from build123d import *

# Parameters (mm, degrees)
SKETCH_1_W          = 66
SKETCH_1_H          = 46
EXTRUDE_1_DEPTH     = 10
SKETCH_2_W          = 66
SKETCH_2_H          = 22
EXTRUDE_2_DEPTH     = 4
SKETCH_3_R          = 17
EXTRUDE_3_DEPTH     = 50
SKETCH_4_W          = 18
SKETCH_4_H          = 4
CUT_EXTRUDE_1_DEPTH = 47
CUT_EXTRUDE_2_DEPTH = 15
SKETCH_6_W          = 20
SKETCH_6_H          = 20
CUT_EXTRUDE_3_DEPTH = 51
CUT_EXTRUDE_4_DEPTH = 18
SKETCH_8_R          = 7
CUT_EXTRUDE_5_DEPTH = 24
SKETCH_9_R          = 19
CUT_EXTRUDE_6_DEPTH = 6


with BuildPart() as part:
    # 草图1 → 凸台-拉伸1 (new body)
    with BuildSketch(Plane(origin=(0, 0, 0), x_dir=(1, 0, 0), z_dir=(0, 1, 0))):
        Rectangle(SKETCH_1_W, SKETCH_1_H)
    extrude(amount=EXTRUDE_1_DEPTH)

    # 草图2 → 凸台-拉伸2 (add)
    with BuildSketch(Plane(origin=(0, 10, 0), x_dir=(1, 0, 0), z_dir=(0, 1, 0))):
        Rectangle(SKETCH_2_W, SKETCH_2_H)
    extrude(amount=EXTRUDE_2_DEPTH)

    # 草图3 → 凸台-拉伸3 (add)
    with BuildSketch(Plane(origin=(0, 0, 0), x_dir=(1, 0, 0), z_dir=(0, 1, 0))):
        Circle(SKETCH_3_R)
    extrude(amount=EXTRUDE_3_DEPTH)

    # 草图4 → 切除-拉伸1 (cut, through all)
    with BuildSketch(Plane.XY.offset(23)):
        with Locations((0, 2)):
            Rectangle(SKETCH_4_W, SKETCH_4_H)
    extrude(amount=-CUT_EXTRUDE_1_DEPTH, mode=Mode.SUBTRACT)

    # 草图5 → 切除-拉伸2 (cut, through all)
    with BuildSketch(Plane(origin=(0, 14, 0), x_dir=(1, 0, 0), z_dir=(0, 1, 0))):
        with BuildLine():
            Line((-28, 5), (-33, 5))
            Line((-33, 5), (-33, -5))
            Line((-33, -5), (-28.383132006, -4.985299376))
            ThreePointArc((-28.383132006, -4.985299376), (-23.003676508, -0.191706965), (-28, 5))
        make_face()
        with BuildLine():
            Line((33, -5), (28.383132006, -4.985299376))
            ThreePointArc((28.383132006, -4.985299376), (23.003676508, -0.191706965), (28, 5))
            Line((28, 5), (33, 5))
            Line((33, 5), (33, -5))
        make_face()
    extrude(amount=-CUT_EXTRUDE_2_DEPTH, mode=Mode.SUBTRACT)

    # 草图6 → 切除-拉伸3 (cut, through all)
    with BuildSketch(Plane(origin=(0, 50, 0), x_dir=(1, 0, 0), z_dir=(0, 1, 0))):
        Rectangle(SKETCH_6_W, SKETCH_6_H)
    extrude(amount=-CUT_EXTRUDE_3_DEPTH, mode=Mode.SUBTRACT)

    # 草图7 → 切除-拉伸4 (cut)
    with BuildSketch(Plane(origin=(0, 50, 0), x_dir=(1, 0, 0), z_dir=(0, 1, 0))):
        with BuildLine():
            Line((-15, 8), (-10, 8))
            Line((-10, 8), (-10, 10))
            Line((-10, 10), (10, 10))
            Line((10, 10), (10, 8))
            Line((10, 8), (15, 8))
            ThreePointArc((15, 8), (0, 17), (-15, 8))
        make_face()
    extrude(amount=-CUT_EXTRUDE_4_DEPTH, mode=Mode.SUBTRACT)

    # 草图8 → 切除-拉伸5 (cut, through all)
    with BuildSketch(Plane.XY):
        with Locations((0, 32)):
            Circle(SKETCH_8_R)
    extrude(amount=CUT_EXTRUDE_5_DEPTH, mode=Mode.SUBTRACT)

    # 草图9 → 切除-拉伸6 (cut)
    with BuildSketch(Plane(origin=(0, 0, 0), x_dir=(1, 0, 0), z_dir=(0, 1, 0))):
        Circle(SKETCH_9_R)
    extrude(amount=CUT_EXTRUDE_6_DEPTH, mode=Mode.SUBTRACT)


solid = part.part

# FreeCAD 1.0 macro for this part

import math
import FreeCAD as App
import Part
import Sketcher
from FreeCAD import Vector

doc = App.newDocument("Part")
body = doc.addObject("PartDesign::Body", "Body")

sketch1 = doc.addObject("Sketcher::SketchObject", "Sketch")
body.addObject(sketch1)
sketch1.AttachmentSupport = (doc.XZ_Plane, [""])
sketch1.MapMode = "FlatFace"
sketch1.addGeometry([
    Part.LineSegment(Vector(-33, -23, 0), Vector(-33, 23, 0)),
    Part.LineSegment(Vector(-33, 23, 0), Vector(33, 23, 0)),
    Part.LineSegment(Vector(33, 23, 0), Vector(33, -23, 0)),
    Part.LineSegment(Vector(33, -23, 0), Vector(-33, -23, 0)),
], False)
sketch1.addConstraint([
    Sketcher.Constraint("Coincident", 0, 2, 1, 1),
    Sketcher.Constraint("Coincident", 1, 2, 2, 1),
    Sketcher.Constraint("Coincident", 2, 2, 3, 1),
    Sketcher.Constraint("Coincident", 3, 2, 0, 1),
    Sketcher.Constraint("Vertical", 0),
    Sketcher.Constraint("Horizontal", 1),
    Sketcher.Constraint("Vertical", 2),
    Sketcher.Constraint("Horizontal", 3),
    Sketcher.Constraint("Symmetric", 0, 2, 2, 2, -1, 1),
    Sketcher.Constraint("DistanceX", 1, 1, 1, 2, 66.0),
    Sketcher.Constraint("DistanceY", 0, 1, 0, 2, 46.0),
])
pad1 = doc.addObject("PartDesign::Pad", "Pad")
body.addObject(pad1)
pad1.Profile = sketch1
pad1.Length = 10
pad1.Reversed = True

sketch2 = doc.addObject("Sketcher::SketchObject", "Sketch001")
body.addObject(sketch2)
sketch2.AttachmentSupport = (doc.XZ_Plane, [""])
sketch2.MapMode = "FlatFace"
sketch2.AttachmentOffset = App.Placement(Vector(0, 0, -10), App.Rotation())
sketch2.addGeometry([
    Part.LineSegment(Vector(-33, -11, 0), Vector(-33, 11, 0)),
    Part.LineSegment(Vector(-33, 11, 0), Vector(33, 11, 0)),
    Part.LineSegment(Vector(33, 11, 0), Vector(33, -11, 0)),
    Part.LineSegment(Vector(33, -11, 0), Vector(-33, -11, 0)),
], False)
sketch2.addConstraint([
    Sketcher.Constraint("Coincident", 0, 2, 1, 1),
    Sketcher.Constraint("Coincident", 1, 2, 2, 1),
    Sketcher.Constraint("Coincident", 2, 2, 3, 1),
    Sketcher.Constraint("Coincident", 3, 2, 0, 1),
    Sketcher.Constraint("Vertical", 0),
    Sketcher.Constraint("Horizontal", 1),
    Sketcher.Constraint("Vertical", 2),
    Sketcher.Constraint("Horizontal", 3),
    Sketcher.Constraint("Symmetric", 0, 2, 2, 2, -1, 1),
    Sketcher.Constraint("DistanceX", 1, 1, 1, 2, 66.0),
    Sketcher.Constraint("DistanceY", 0, 1, 0, 2, 22.0),
])
pad2 = doc.addObject("PartDesign::Pad", "Pad001")
body.addObject(pad2)
pad2.Profile = sketch2
pad2.Length = 4
pad2.Reversed = True

sketch3 = doc.addObject("Sketcher::SketchObject", "Sketch002")
body.addObject(sketch3)
sketch3.AttachmentSupport = (doc.XZ_Plane, [""])
sketch3.MapMode = "FlatFace"
sketch3.addGeometry(Part.Circle(Vector(0, 0, 0), Vector(0, 0, 1), 17), False)
sketch3.addConstraint([
    Sketcher.Constraint("Coincident", 0, 3, -1, 1),
    Sketcher.Constraint("Diameter", 0, 34.0),
])
pad3 = doc.addObject("PartDesign::Pad", "Pad002")
body.addObject(pad3)
pad3.Profile = sketch3
pad3.Length = 50
pad3.Reversed = True

sketch4 = doc.addObject("Sketcher::SketchObject", "Sketch003")
body.addObject(sketch4)
sketch4.AttachmentSupport = (doc.XY_Plane, [""])
sketch4.MapMode = "FlatFace"
sketch4.AttachmentOffset = App.Placement(Vector(0, 0, 23), App.Rotation())
sketch4.addGeometry([
    Part.LineSegment(Vector(-9, 4, 0), Vector(-9, 0, 0)),
    Part.LineSegment(Vector(-9, 0, 0), Vector(9, 0, 0)),
    Part.LineSegment(Vector(9, 0, 0), Vector(9, 4, 0)),
    Part.LineSegment(Vector(9, 4, 0), Vector(-9, 4, 0)),
], False)
sketch4.addConstraint([
    Sketcher.Constraint("Coincident", 0, 2, 1, 1),
    Sketcher.Constraint("Coincident", 1, 2, 2, 1),
    Sketcher.Constraint("Coincident", 2, 2, 3, 1),
    Sketcher.Constraint("Coincident", 3, 2, 0, 1),
    Sketcher.Constraint("Vertical", 0),
    Sketcher.Constraint("Horizontal", 1),
    Sketcher.Constraint("Vertical", 2),
    Sketcher.Constraint("Horizontal", 3),
    Sketcher.Constraint("Symmetric", 0, 2, 1, 2, -1, 1),
    Sketcher.Constraint("DistanceX", 1, 1, 1, 2, 18.0),
    Sketcher.Constraint("DistanceY", 0, 2, 0, 1, 4.0),
])
pocket1 = doc.addObject("PartDesign::Pocket", "Pocket")
body.addObject(pocket1)
pocket1.Profile = sketch4
pocket1.Type = "ThroughAll"

sketch5 = doc.addObject("Sketcher::SketchObject", "Sketch004")
body.addObject(sketch5)
sketch5.AttachmentSupport = (doc.XZ_Plane, [""])
sketch5.MapMode = "FlatFace"
sketch5.AttachmentOffset = App.Placement(Vector(0, 0, -14), App.Rotation())
sketch5.addGeometry([
    Part.LineSegment(Vector(-28, -5, 0), Vector(-33, -5, 0)),
    Part.LineSegment(Vector(-33, -5, 0), Vector(-33, 5, 0)),
    Part.LineSegment(Vector(-33, 5, 0), Vector(-28.383132, 4.985299, 0)),
    Part.ArcOfCircle(Part.Circle(Vector(-28, 0, 0), Vector(0, 0, 1), 5), math.radians(-90), math.radians(94.394677)),
    Part.LineSegment(Vector(28.383132, 4.985299, 0), Vector(33, 5, 0)),
    Part.LineSegment(Vector(33, 5, 0), Vector(33, -5, 0)),
    Part.LineSegment(Vector(33, -5, 0), Vector(28, -5, 0)),
    Part.ArcOfCircle(Part.Circle(Vector(28, 0, 0), Vector(0, 0, 1), 5), math.radians(85.605323), math.radians(270)),
], False)
sketch5.addConstraint([
    Sketcher.Constraint("Coincident", 0, 2, 1, 1),
    Sketcher.Constraint("Coincident", 1, 2, 2, 1),
    Sketcher.Constraint("Coincident", 2, 2, 3, 2),
    Sketcher.Constraint("Tangent", 3, 1, 0, 1),
    Sketcher.Constraint("Coincident", 4, 2, 5, 1),
    Sketcher.Constraint("Coincident", 5, 2, 6, 1),
    Sketcher.Constraint("Tangent", 6, 2, 7, 2),
    Sketcher.Constraint("Coincident", 7, 1, 4, 1),
    Sketcher.Constraint("Horizontal", 0),
    Sketcher.Constraint("Vertical", 1),
    Sketcher.Constraint("Vertical", 5),
    Sketcher.Constraint("Horizontal", 6),
    Sketcher.Constraint("Equal", 3, 7),
    Sketcher.Constraint("Symmetric", 3, 3, 7, 3, -1, 1),
    Sketcher.Constraint("Symmetric", 0, 2, 4, 2, -1, 1),
    Sketcher.Constraint("Symmetric", 2, 2, 7, 1, -2),
    Sketcher.Constraint("Horizontal", 1, 2, 4, 2),
    Sketcher.Constraint("Radius", 3, 5.0),
    Sketcher.Constraint("DistanceX", 0, 2, 0, 1, 5.0),
    Sketcher.Constraint("DistanceX", 3, 3, -1, 1, 28.0),
    Sketcher.Constraint("DistanceY", -1, 1, 2, 2, 4.985299),
])
pocket2 = doc.addObject("PartDesign::Pocket", "Pocket001")
body.addObject(pocket2)
pocket2.Profile = sketch5
pocket2.Type = "ThroughAll"
pocket2.Reversed = True

sketch6 = doc.addObject("Sketcher::SketchObject", "Sketch005")
body.addObject(sketch6)
sketch6.AttachmentSupport = (doc.XZ_Plane, [""])
sketch6.MapMode = "FlatFace"
sketch6.AttachmentOffset = App.Placement(Vector(0, 0, -50), App.Rotation())
sketch6.addGeometry([
    Part.LineSegment(Vector(-10, -10, 0), Vector(-10, 10, 0)),
    Part.LineSegment(Vector(-10, 10, 0), Vector(10, 10, 0)),
    Part.LineSegment(Vector(10, 10, 0), Vector(10, -10, 0)),
    Part.LineSegment(Vector(10, -10, 0), Vector(-10, -10, 0)),
], False)
sketch6.addConstraint([
    Sketcher.Constraint("Coincident", 0, 2, 1, 1),
    Sketcher.Constraint("Coincident", 1, 2, 2, 1),
    Sketcher.Constraint("Coincident", 2, 2, 3, 1),
    Sketcher.Constraint("Coincident", 3, 2, 0, 1),
    Sketcher.Constraint("Vertical", 0),
    Sketcher.Constraint("Horizontal", 1),
    Sketcher.Constraint("Vertical", 2),
    Sketcher.Constraint("Horizontal", 3),
    Sketcher.Constraint("Symmetric", 0, 2, 2, 2, -1, 1),
    Sketcher.Constraint("Equal", 3, 0),
    Sketcher.Constraint("DistanceX", 1, 1, 1, 2, 20.0),
])
pocket3 = doc.addObject("PartDesign::Pocket", "Pocket002")
body.addObject(pocket3)
pocket3.Profile = sketch6
pocket3.Type = "ThroughAll"
pocket3.Reversed = True

sketch7 = doc.addObject("Sketcher::SketchObject", "Sketch006")
body.addObject(sketch7)
sketch7.AttachmentSupport = (doc.XZ_Plane, [""])
sketch7.MapMode = "FlatFace"
sketch7.AttachmentOffset = App.Placement(Vector(0, 0, -50), App.Rotation())
sketch7.addGeometry([
    Part.LineSegment(Vector(-15, -8, 0), Vector(-10, -8, 0)),
    Part.LineSegment(Vector(-10, -8, 0), Vector(-10, -10, 0)),
    Part.LineSegment(Vector(-10, -10, 0), Vector(10, -10, 0)),
    Part.LineSegment(Vector(10, -10, 0), Vector(10, -8, 0)),
    Part.LineSegment(Vector(10, -8, 0), Vector(15, -8, 0)),
    Part.ArcOfCircle(Part.Circle(Vector(0, 0, 0), Vector(0, 0, 1), 17), math.radians(-151.927513), math.radians(-28.072487)),
], False)
sketch7.addConstraint([
    Sketcher.Constraint("Coincident", 0, 2, 1, 1),
    Sketcher.Constraint("Coincident", 1, 2, 2, 1),
    Sketcher.Constraint("Coincident", 2, 2, 3, 1),
    Sketcher.Constraint("Coincident", 3, 2, 4, 1),
    Sketcher.Constraint("Coincident", 4, 2, 5, 2),
    Sketcher.Constraint("Coincident", 5, 1, 0, 1),
    Sketcher.Constraint("Horizontal", 0),
    Sketcher.Constraint("Vertical", 1),
    Sketcher.Constraint("Horizontal", 2),
    Sketcher.Constraint("Vertical", 3),
    Sketcher.Constraint("Horizontal", 4),
    Sketcher.Constraint("Coincident", 5, 3, -1, 1),
    Sketcher.Constraint("Symmetric", 0, 2, 3, 2, -2),
    Sketcher.Constraint("Radius", 5, 17.0),
    Sketcher.Constraint("DistanceX", 0, 1, 0, 2, 5.0),
    Sketcher.Constraint("DistanceX", 2, 1, 2, 2, 20.0),
    Sketcher.Constraint("DistanceY", 1, 2, 1, 1, 2.0),
])
pocket4 = doc.addObject("PartDesign::Pocket", "Pocket003")
body.addObject(pocket4)
pocket4.Profile = sketch7
pocket4.Length = 18
pocket4.Reversed = True

sketch8 = doc.addObject("Sketcher::SketchObject", "Sketch007")
body.addObject(sketch8)
sketch8.AttachmentSupport = (doc.XY_Plane, [""])
sketch8.MapMode = "FlatFace"
sketch8.addGeometry(Part.Circle(Vector(0, 32, 0), Vector(0, 0, 1), 7), False)
sketch8.addConstraint([
    Sketcher.Constraint("PointOnObject", 0, 3, -2),
    Sketcher.Constraint("Diameter", 0, 14.0),
    Sketcher.Constraint("DistanceY", -1, 1, 0, 3, 32.0),
])
pocket5 = doc.addObject("PartDesign::Pocket", "Pocket004")
body.addObject(pocket5)
pocket5.Profile = sketch8
pocket5.Type = "ThroughAll"
pocket5.Reversed = True

sketch9 = doc.addObject("Sketcher::SketchObject", "Sketch008")
body.addObject(sketch9)
sketch9.AttachmentSupport = (doc.XZ_Plane, [""])
sketch9.MapMode = "FlatFace"
sketch9.addGeometry(Part.Circle(Vector(0, 0, 0), Vector(0, 0, 1), 19), False)
sketch9.addConstraint([
    Sketcher.Constraint("Coincident", 0, 3, -1, 1),
    Sketcher.Constraint("Diameter", 0, 38.0),
])
pocket6 = doc.addObject("PartDesign::Pocket", "Pocket005")
body.addObject(pocket6)
pocket6.Profile = sketch9
pocket6.Length = 6

doc.recompute()
